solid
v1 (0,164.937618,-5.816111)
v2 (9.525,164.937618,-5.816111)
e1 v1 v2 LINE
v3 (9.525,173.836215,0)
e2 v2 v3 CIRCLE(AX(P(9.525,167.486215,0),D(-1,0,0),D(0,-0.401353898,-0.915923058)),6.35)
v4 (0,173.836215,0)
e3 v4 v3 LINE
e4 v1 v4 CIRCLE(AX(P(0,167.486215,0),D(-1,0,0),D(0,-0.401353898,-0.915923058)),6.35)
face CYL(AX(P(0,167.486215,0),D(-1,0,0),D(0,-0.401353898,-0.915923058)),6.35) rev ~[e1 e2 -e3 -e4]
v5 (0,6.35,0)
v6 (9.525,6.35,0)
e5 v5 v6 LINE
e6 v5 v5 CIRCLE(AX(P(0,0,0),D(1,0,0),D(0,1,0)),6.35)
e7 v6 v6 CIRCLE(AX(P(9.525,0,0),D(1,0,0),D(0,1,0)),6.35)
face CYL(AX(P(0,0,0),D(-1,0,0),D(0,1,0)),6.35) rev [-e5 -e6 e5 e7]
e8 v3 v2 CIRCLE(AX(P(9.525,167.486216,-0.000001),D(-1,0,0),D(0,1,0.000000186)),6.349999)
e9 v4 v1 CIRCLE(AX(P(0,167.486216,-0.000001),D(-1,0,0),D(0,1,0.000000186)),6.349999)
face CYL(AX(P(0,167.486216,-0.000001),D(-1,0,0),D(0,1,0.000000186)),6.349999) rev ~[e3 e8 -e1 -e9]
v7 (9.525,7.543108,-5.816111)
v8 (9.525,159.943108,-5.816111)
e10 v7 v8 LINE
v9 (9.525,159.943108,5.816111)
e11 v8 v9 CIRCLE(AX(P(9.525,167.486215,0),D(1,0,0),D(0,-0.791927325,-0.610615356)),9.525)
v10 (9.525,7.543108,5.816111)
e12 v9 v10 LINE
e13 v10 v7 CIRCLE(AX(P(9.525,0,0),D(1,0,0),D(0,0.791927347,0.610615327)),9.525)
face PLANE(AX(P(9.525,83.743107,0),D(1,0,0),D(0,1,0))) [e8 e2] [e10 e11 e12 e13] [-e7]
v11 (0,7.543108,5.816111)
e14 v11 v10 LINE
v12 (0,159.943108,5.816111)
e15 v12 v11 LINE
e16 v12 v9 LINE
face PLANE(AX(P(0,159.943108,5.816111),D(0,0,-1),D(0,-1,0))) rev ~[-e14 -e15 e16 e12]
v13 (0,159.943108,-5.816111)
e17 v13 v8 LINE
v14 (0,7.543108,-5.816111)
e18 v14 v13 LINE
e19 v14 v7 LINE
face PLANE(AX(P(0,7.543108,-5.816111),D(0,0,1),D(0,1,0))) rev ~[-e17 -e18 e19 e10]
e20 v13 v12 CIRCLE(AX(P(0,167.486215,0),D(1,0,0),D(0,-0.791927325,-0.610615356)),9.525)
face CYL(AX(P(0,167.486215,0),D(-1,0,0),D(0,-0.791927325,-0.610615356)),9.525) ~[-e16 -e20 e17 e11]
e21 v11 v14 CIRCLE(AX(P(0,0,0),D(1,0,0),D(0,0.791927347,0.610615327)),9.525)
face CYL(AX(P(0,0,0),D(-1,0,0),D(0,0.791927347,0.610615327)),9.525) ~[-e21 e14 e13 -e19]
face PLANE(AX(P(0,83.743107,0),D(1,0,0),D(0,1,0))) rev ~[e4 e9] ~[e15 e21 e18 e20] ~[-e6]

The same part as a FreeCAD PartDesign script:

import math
import FreeCAD as App
import Part
import Sketcher
Q = App.Units.Quantity

doc = App.newDocument("Part")
body = doc.addObject("PartDesign::Body", "Body")

# Sketch on YZ plane
sketch1 = body.newObject("Sketcher::SketchObject", "Sketch")
sketch1.AttachmentSupport = (doc.getObject("YZ_Plane"), [""])
sketch1.MapMode = "FlatFace"
sketch1.addGeometry([
    Part.ArcOfCircle(Part.Circle(App.Vector(0, 0, 0), App.Vector(0, 0, 1), 10), math.radians(38), math.radians(322)),  # 0
    Part.LineSegment(App.Vector(8, -6, 0), App.Vector(160, -6, 0)),  # 1
    Part.ArcOfCircle(Part.Circle(App.Vector(167, 0, 0), App.Vector(0, 0, 1), 10), math.radians(-142), math.radians(142)),  # 2
    Part.LineSegment(App.Vector(160, 6, 0), App.Vector(8, 6, 0)),  # 3
    Part.Circle(App.Vector(0, 0, 0), App.Vector(0, 0, 1), 6),  # 4
    Part.ArcOfCircle(Part.Circle(App.Vector(167, 0, 0), App.Vector(0, 0, 1), 6), math.radians(-114), math.radians(0)),  # 5
    Part.ArcOfCircle(Part.Circle(App.Vector(167, 0, 0), App.Vector(0, 0, 1), 6), math.radians(0), math.radians(246)),  # 6
], False)
sketch1.addConstraint([
    Sketcher.Constraint("Coincident", 0, 2, 1, 1),
    Sketcher.Constraint("Coincident", 1, 2, 2, 1),
    Sketcher.Constraint("Coincident", 2, 2, 3, 1),
    Sketcher.Constraint("Coincident", 3, 2, 0, 1),
    Sketcher.Constraint("Tangent", 5, 1, 6, 2),
    Sketcher.Constraint("Coincident", 6, 1, 5, 2),
    Sketcher.Constraint("Horizontal", 1),
    Sketcher.Constraint("Horizontal", 3),
    Sketcher.Constraint("Coincident", 0, 3, -1, 1),
    Sketcher.Constraint("Coincident", 4, 3, -1, 1),
    Sketcher.Constraint("Coincident", 5, 3, 2, 3),
    Sketcher.Constraint("Equal", 0, 2),
    Sketcher.Constraint("Equal", 4, 5),
    Sketcher.Constraint("Symmetric", 1, 2, 2, 2, -1),
    Sketcher.Constraint("PointOnObject", 6, 1, -1),
    Sketcher.Constraint("Horizontal", 1, 2, 5, 1),
    Sketcher.Constraint("Diameter", 4, Q("0.5 in")),
    Sketcher.Constraint("DistanceX", 1, 1, 1, 2, Q("6 in")),
    Sketcher.Constraint("Radius", 0, Q("0.375 in")),
    Sketcher.Constraint("DistanceX", 5, 1, 5, 3, 2.548598),
])
pad1 = body.newObject("PartDesign::Pad", "Pad")
pad1.Profile = sketch1
pad1.Length = Q("0.375 in")

doc.recompute()
